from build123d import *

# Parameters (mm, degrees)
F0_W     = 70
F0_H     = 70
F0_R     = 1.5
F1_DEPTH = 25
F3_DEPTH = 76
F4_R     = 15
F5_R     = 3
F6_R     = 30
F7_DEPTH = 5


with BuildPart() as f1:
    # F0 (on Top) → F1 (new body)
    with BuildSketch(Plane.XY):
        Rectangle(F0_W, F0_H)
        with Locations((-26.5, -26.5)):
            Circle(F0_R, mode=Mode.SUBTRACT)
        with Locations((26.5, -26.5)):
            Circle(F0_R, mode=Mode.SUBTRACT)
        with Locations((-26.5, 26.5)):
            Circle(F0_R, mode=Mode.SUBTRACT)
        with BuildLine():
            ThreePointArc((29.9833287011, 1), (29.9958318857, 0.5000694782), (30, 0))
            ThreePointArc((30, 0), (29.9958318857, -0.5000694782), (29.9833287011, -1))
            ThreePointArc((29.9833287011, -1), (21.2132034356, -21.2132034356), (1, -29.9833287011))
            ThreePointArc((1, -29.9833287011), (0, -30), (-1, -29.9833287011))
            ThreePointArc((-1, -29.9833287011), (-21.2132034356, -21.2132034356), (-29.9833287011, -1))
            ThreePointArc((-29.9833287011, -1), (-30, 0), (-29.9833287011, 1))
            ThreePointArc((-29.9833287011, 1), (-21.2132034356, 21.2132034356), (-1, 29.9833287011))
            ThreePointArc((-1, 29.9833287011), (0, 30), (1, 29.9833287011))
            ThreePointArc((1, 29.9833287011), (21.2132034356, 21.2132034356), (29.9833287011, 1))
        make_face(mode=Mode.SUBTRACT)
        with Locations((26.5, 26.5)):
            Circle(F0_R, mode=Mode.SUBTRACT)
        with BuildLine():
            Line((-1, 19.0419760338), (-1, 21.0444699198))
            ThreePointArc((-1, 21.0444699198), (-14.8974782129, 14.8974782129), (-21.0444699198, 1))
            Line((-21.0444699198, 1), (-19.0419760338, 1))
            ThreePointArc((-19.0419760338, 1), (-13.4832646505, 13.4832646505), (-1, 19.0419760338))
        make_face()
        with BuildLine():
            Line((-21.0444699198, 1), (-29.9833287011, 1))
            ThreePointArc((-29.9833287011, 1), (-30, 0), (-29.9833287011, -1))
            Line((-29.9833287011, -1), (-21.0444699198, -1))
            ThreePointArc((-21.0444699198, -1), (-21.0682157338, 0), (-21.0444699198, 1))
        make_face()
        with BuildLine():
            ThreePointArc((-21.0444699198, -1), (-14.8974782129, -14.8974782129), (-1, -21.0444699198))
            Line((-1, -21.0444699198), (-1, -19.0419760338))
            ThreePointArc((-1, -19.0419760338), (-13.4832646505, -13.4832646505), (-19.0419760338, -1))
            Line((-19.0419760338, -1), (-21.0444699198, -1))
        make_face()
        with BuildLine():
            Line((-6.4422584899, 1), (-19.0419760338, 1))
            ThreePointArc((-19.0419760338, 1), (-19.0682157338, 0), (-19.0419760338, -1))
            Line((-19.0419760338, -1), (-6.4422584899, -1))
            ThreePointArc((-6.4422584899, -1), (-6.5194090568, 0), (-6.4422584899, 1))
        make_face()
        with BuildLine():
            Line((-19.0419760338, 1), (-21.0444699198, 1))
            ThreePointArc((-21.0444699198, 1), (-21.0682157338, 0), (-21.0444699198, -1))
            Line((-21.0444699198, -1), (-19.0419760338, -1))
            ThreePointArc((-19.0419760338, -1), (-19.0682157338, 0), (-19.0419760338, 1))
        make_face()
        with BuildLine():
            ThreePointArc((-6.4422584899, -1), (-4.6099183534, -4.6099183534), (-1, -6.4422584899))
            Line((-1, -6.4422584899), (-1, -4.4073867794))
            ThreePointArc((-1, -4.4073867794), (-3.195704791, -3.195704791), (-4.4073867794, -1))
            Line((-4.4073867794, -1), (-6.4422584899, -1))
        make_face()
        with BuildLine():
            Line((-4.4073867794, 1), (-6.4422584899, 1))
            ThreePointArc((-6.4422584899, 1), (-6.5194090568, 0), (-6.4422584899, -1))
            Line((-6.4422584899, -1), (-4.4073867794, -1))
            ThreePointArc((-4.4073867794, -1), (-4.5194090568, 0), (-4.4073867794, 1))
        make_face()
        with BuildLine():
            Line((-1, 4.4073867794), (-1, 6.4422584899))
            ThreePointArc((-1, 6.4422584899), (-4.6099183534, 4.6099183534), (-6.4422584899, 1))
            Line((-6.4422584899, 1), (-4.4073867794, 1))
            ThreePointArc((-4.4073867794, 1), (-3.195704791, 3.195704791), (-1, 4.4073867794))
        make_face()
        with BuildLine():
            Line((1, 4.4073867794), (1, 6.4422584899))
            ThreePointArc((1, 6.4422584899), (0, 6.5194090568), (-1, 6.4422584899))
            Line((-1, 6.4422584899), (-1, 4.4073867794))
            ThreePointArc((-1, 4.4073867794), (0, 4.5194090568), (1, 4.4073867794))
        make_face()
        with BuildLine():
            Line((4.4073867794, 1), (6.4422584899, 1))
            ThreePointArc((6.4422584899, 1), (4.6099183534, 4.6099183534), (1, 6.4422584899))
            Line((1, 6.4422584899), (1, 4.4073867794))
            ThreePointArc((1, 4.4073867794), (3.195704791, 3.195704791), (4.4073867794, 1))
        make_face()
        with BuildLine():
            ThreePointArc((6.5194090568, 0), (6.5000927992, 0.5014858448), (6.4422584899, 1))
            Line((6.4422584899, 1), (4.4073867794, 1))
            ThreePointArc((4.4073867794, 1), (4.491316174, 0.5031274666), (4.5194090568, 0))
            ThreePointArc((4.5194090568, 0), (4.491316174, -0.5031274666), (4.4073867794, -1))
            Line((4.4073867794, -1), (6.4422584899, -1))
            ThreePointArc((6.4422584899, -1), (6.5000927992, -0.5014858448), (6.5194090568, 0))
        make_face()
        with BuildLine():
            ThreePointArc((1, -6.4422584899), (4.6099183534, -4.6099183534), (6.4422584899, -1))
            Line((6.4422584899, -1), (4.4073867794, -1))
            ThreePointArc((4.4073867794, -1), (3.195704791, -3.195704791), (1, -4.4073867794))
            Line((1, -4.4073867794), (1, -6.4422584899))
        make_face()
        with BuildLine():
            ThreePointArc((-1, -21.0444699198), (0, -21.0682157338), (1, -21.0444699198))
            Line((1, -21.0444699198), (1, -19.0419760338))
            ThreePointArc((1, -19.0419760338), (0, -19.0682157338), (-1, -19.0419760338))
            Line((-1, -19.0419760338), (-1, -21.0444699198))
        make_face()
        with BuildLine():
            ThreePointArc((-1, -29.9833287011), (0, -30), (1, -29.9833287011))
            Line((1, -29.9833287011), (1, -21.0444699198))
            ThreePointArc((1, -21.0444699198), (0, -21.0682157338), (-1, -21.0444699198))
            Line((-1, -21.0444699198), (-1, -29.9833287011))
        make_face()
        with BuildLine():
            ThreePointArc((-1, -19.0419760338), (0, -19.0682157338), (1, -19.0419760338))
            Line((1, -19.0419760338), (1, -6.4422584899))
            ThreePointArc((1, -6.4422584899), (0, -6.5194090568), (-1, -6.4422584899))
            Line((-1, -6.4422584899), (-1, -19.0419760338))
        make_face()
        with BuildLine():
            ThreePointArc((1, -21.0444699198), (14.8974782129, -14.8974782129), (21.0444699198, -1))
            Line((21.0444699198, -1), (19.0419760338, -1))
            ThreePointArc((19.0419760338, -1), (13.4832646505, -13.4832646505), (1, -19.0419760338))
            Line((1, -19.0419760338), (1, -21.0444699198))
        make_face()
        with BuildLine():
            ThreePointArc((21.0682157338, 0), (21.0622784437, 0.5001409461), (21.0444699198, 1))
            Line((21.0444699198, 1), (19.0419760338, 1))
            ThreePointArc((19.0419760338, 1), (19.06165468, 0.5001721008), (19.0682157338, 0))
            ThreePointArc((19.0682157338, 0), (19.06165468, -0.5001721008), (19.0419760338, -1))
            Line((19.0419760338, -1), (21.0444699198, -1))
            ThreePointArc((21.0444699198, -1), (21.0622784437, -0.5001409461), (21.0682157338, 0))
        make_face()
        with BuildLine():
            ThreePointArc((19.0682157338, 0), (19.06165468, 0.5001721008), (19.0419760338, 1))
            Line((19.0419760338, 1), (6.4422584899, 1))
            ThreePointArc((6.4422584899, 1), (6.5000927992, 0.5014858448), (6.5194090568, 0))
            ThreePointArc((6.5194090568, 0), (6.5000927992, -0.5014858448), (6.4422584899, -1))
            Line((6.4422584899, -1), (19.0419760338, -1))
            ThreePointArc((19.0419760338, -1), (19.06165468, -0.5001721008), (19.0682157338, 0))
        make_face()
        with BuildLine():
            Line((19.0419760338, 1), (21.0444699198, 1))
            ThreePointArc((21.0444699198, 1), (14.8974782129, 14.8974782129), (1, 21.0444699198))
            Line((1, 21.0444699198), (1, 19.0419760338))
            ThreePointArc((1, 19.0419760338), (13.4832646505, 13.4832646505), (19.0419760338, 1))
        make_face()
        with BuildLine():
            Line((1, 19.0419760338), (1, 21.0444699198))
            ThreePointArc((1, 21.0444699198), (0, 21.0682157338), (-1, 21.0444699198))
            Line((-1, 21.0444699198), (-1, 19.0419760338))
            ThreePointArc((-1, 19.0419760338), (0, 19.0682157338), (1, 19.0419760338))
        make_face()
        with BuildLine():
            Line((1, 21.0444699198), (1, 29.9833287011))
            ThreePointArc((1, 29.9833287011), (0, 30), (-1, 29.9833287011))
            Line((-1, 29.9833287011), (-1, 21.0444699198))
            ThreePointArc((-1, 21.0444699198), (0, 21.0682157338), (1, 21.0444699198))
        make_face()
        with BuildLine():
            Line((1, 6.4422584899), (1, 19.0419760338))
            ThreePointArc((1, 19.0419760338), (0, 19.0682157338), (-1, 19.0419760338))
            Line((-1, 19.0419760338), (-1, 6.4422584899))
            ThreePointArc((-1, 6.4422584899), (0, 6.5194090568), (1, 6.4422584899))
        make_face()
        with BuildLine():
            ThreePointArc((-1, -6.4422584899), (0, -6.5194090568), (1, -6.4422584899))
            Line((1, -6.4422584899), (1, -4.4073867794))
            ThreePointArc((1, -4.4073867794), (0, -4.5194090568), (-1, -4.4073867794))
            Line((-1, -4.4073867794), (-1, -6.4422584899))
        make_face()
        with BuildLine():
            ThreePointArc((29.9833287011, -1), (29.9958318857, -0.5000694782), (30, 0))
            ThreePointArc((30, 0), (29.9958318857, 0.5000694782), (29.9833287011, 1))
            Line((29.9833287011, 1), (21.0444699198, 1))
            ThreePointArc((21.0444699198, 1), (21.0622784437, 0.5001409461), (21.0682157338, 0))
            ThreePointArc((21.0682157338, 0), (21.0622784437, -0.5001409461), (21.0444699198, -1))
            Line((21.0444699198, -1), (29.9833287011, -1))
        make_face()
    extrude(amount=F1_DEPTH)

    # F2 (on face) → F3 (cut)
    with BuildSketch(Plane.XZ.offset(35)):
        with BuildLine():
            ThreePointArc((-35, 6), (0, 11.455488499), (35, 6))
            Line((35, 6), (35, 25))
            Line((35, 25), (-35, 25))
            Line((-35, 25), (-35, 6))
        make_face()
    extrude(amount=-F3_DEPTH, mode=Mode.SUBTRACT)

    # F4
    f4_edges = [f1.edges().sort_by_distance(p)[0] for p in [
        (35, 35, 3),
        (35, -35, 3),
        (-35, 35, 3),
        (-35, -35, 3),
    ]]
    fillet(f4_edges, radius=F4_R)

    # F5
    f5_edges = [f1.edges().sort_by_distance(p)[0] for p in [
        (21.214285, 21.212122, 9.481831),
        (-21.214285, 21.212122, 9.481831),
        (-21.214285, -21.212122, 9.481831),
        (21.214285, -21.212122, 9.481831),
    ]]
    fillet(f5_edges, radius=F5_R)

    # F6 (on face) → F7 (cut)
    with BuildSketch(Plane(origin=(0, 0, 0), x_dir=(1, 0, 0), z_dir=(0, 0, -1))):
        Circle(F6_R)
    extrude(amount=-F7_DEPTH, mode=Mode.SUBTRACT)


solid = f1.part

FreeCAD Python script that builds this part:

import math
import FreeCAD as App
import Part
import Sketcher
from FreeCAD import Vector


def edges_at(feature, points):
    """Names of the edges that pass closest to the given points."""
    edges = feature.Shape.Edges
    near = lambda p: min(range(len(edges)), key=lambda i: edges[i].distToShape(Part.Vertex(*p))[0])
    return sorted({f"Edge{near(p) + 1}" for p in points})

doc = App.newDocument("Part")
body = doc.addObject("PartDesign::Body", "Body")

# Sketch on XY plane
sketch1 = doc.addObject("Sketcher::SketchObject", "Sketch")
body.addObject(sketch1)
sketch1.AttachmentSupport = (doc.XY_Plane, [""])
sketch1.MapMode = "FlatFace"
sketch1.addGeometry([
    Part.LineSegment(Vector(-35, 35, 0), Vector(-35, -35, 0)),  # 0
    Part.LineSegment(Vector(-35, -35, 0), Vector(35, -35, 0)),  # 1
    Part.LineSegment(Vector(35, -35, 0), Vector(35, 35, 0)),  # 2
    Part.LineSegment(Vector(35, 35, 0), Vector(-35, 35, 0)),  # 3
    Part.Circle(Vector(-26.5, -26.5, 0), Vector(0, 0, 1), 1.5),  # 4
    Part.ArcOfCircle(Part.Circle(Vector(0, 0, 0), Vector(0, 0, 1), 30), math.radians(-178), math.radians(-92)),  # 5
    Part.LineSegment(Vector(-30, -1, 0), Vector(-21, -1, 0)),  # 6
    Part.ArcOfCircle(Part.Circle(Vector(0, 0, 0), Vector(0, 0, 1), 21.1), math.radians(-177), math.radians(-93)),  # 7
    Part.LineSegment(Vector(-1, -21, 0), Vector(-1, -30, 0)),  # 8
    Part.ArcOfCircle(Part.Circle(Vector(0, 0, 0), Vector(0, 0, 1), 6.5), math.radians(-171), math.radians(-99)),  # 9
    Part.LineSegment(Vector(-1, -6.4, 0), Vector(-1, -19, 0)),  # 10
    Part.ArcOfCircle(Part.Circle(Vector(0, 0, 0), Vector(0, 0, 1), 19.1), math.radians(-177), math.radians(-93)),  # 11
    Part.LineSegment(Vector(-19, -1, 0), Vector(-6.4, -1, 0)),  # 12
    Part.ArcOfCircle(Part.Circle(Vector(0, 0, 0), Vector(0, 0, 1), 4.5), math.radians(-77), math.radians(-13)),  # 13
    Part.ArcOfCircle(Part.Circle(Vector(0, 0, 0), Vector(0, 0, 1), 4.5), math.radians(-103), math.radians(-77)),  # 14
    Part.ArcOfCircle(Part.Circle(Vector(0, 0, 0), Vector(0, 0, 1), 4.5), math.radians(-167), math.radians(-103)),  # 15
    Part.ArcOfCircle(Part.Circle(Vector(0, 0, 0), Vector(0, 0, 1), 4.5), math.radians(167), math.radians(193)),  # 16
    Part.ArcOfCircle(Part.Circle(Vector(0, 0, 0), Vector(0, 0, 1), 4.5), math.radians(103), math.radians(167)),  # 17
    Part.ArcOfCircle(Part.Circle(Vector(0, 0, 0), Vector(0, 0, 1), 4.5), math.radians(77), math.radians(103)),  # 18
    Part.ArcOfCircle(Part.Circle(Vector(0, 0, 0), Vector(0, 0, 1), 4.5), math.radians(13), math.radians(77)),  # 19
    Part.ArcOfCircle(Part.Circle(Vector(0, 0, 0), Vector(0, 0, 1), 4.5), math.radians(0), math.radians(12.78)),  # 20
    Part.ArcOfCircle(Part.Circle(Vector(0, 0, 0), Vector(0, 0, 1), 4.5), math.radians(-12.78), math.radians(0)),  # 21
    Part.Circle(Vector(26.5, -26.5, 0), Vector(0, 0, 1), 1.5),  # 22
    Part.LineSegment(Vector(1, -19, 0), Vector(1, -6.4, 0)),  # 23
    Part.ArcOfCircle(Part.Circle(Vector(0, 0, 0), Vector(0, 0, 1), 6.5), math.radians(-81), math.radians(-9)),  # 24
    Part.LineSegment(Vector(6.4, -1, 0), Vector(19, -1, 0)),  # 25
    Part.ArcOfCircle(Part.Circle(Vector(0, 0, 0), Vector(0, 0, 1), 19.1), math.radians(-87), math.radians(-3)),  # 26
    Part.ArcOfCircle(Part.Circle(Vector(0, 0, 0), Vector(0, 0, 1), 19.1), math.radians(93), math.radians(177)),  # 27
    Part.LineSegment(Vector(-1, 19, 0), Vector(-1, 6.4, 0)),  # 28
    Part.ArcOfCircle(Part.Circle(Vector(0, 0, 0), Vector(0, 0, 1), 6.5), math.radians(99), math.radians(171)),  # 29
    Part.LineSegment(Vector(-6.4, 1, 0), Vector(-19, 1, 0)),  # 30
    Part.ArcOfCircle(Part.Circle(Vector(0, 0, 0), Vector(0, 0, 1), 21.1), math.radians(93), math.radians(177)),  # 31
    Part.LineSegment(Vector(-21, 1, 0), Vector(-30, 1, 0)),  # 32
    Part.ArcOfCircle(Part.Circle(Vector(0, 0, 0), Vector(0, 0, 1), 30), math.radians(92), math.radians(178)),  # 33
    Part.LineSegment(Vector(-1, 30, 0), Vector(-1, 21, 0)),  # 34
    Part.Circle(Vector(-26.5, 26.5, 0), Vector(0, 0, 1), 1.5),  # 35
    Part.ArcOfCircle(Part.Circle(Vector(0, 0, 0), Vector(0, 0, 1), 19.1), math.radians(3), math.radians(87)),  # 36
    Part.LineSegment(Vector(19, 1, 0), Vector(6.4, 1, 0)),  # 37
    Part.ArcOfCircle(Part.Circle(Vector(0, 0, 0), Vector(0, 0, 1), 6.5), math.radians(9), math.radians(81)),  # 38
    Part.LineSegment(Vector(1, 6.4, 0), Vector(1, 19, 0)),  # 39
    Part.ArcOfCircle(Part.Circle(Vector(0, 0, 0), Vector(0, 0, 1), 21.1), math.radians(3), math.radians(87)),  # 40
    Part.LineSegment(Vector(1, 21, 0), Vector(1, 30, 0)),  # 41
    Part.ArcOfCircle(Part.Circle(Vector(0, 0, 0), Vector(0, 0, 1), 30), math.radians(2), math.radians(88)),  # 42
    Part.LineSegment(Vector(30, 1, 0), Vector(21, 1, 0)),  # 43
    Part.ArcOfCircle(Part.Circle(Vector(0, 0, 0), Vector(0, 0, 1), 30), math.radians(-88), math.radians(-2)),  # 44
    Part.LineSegment(Vector(1, -30, 0), Vector(1, -21, 0)),  # 45
    Part.ArcOfCircle(Part.Circle(Vector(0, 0, 0), Vector(0, 0, 1), 21.1), math.radians(-87), math.radians(-3)),  # 46
    Part.LineSegment(Vector(21, -1, 0), Vector(30, -1, 0)),  # 47
    Part.Circle(Vector(26.5, 26.5, 0), Vector(0, 0, 1), 1.5),  # 48
], False)
sketch1.addConstraint([
    Sketcher.Constraint("Coincident", 0, 2, 1, 1),
    Sketcher.Constraint("Coincident", 1, 2, 2, 1),
    Sketcher.Constraint("Coincident", 2, 2, 3, 1),
    Sketcher.Constraint("Coincident", 3, 2, 0, 1),
    Sketcher.Constraint("Coincident", 5, 1, 6, 1),
    Sketcher.Constraint("Coincident", 6, 2, 7, 1),
    Sketcher.Constraint("Coincident", 7, 2, 8, 1),
    Sketcher.Constraint("Coincident", 8, 2, 5, 2),
    Sketcher.Constraint("Coincident", 9, 2, 10, 1),
    Sketcher.Constraint("Coincident", 10, 2, 11, 2),
    Sketcher.Constraint("Coincident", 11, 1, 12, 1),
    Sketcher.Constraint("Coincident", 12, 2, 9, 1),
    Sketcher.Constraint("Tangent", 13, 1, 14, 2),
    Sketcher.Constraint("Tangent", 14, 1, 15, 2),
    Sketcher.Constraint("Tangent", 15, 1, 16, 2),
    Sketcher.Constraint("Tangent", 16, 1, 17, 2),
    Sketcher.Constraint("Tangent", 17, 1, 18, 2),
    Sketcher.Constraint("Tangent", 18, 1, 19, 2),
    Sketcher.Constraint("Tangent", 19, 1, 20, 2),
    Sketcher.Constraint("Tangent", 20, 1, 21, 2),
    Sketcher.Constraint("Tangent", 21, 1, 13, 2),
    Sketcher.Constraint("Coincident", 23, 2, 24, 1),
    Sketcher.Constraint("Coincident", 24, 2, 25, 1),
    Sketcher.Constraint("Coincident", 25, 2, 26, 2),
    Sketcher.Constraint("Coincident", 26, 1, 23, 1),
    Sketcher.Constraint("Coincident", 27, 1, 28, 1),
    Sketcher.Constraint("Coincident", 28, 2, 29, 1),
    Sketcher.Constraint("Coincident", 29, 2, 30, 1),
    Sketcher.Constraint("Coincident", 30, 2, 27, 2),
    Sketcher.Constraint("Coincident", 31, 2, 32, 1),
    Sketcher.Constraint("Coincident", 32, 2, 33, 2),
    Sketcher.Constraint("Coincident", 33, 1, 34, 1),
    Sketcher.Constraint("Coincident", 34, 2, 31, 1),
    Sketcher.Constraint("Coincident", 36, 1, 37, 1),
    Sketcher.Constraint("Coincident", 37, 2, 38, 1),
    Sketcher.Constraint("Coincident", 38, 2, 39, 1),
    Sketcher.Constraint("Coincident", 39, 2, 36, 2),
    Sketcher.Constraint("Coincident", 40, 2, 41, 1),
    Sketcher.Constraint("Coincident", 41, 2, 42, 2),
    Sketcher.Constraint("Coincident", 42, 1, 43, 1),
    Sketcher.Constraint("Coincident", 43, 2, 40, 1),
    Sketcher.Constraint("Coincident", 44, 1, 45, 1),
    Sketcher.Constraint("Coincident", 45, 2, 46, 1),
    Sketcher.Constraint("Coincident", 46, 2, 47, 1),
    Sketcher.Constraint("Coincident", 47, 2, 44, 2),
    Sketcher.Constraint("Vertical", 0),
    Sketcher.Constraint("Horizontal", 1),
    Sketcher.Constraint("Vertical", 2),
    Sketcher.Constraint("Horizontal", 3),
    Sketcher.Constraint("Horizontal", 6),
    Sketcher.Constraint("Vertical", 8),
    Sketcher.Constraint("Vertical", 10),
    Sketcher.Constraint("Horizontal", 12),
    Sketcher.Constraint("Vertical", 23),
    Sketcher.Constraint("Horizontal", 25),
    Sketcher.Constraint("Vertical", 28),
    Sketcher.Constraint("Horizontal", 30),
    Sketcher.Constraint("Horizontal", 32),
    Sketcher.Constraint("Vertical", 34),
    Sketcher.Constraint("Horizontal", 37),
    Sketcher.Constraint("Vertical", 39),
    Sketcher.Constraint("Vertical", 41),
    Sketcher.Constraint("Horizontal", 43),
    Sketcher.Constraint("Vertical", 45),
    Sketcher.Constraint("Horizontal", 47),
    Sketcher.Constraint("Coincident", 5, 3, -1, 1),
    Sketcher.Constraint("Coincident", 7, 3, -1, 1),
    Sketcher.Constraint("Coincident", 9, 3, -1, 1),
    Sketcher.Constraint("Coincident", 11, 3, -1, 1),
    Sketcher.Constraint("Coincident", 13, 3, -1, 1),
    Sketcher.Constraint("Coincident", 15, 3, -1, 1),
    Sketcher.Constraint("Coincident", 17, 3, -1, 1),
    Sketcher.Constraint("Coincident", 19, 3, -1, 1),
    Sketcher.Constraint("Coincident", 24, 3, -1, 1),
    Sketcher.Constraint("Coincident", 26, 3, -1, 1),
    Sketcher.Constraint("Coincident", 27, 3, -1, 1),
    Sketcher.Constraint("Coincident", 29, 3, -1, 1),
    Sketcher.Constraint("Coincident", 31, 3, -1, 1),
    Sketcher.Constraint("Coincident", 33, 3, -1, 1),
    Sketcher.Constraint("Coincident", 36, 3, -1, 1),
    Sketcher.Constraint("Coincident", 38, 3, -1, 1),
    Sketcher.Constraint("Coincident", 40, 3, -1, 1),
    Sketcher.Constraint("Coincident", 42, 3, -1, 1),
    Sketcher.Constraint("Coincident", 44, 3, -1, 1),
    Sketcher.Constraint("Coincident", 46, 3, -1, 1),
    Sketcher.Constraint("Equal", 4, 22),
    Sketcher.Constraint("Equal", 9, 24),
    Sketcher.Constraint("Equal", 11, 26),
    Sketcher.Constraint("Equal", 26, 27),
    Sketcher.Constraint("Equal", 24, 29),
    Sketcher.Constraint("Equal", 7, 31),
    Sketcher.Constraint("Equal", 5, 33),
    Sketcher.Constraint("Equal", 22, 35),
    Sketcher.Constraint("Equal", 27, 36),
    Sketcher.Constraint("Equal", 29, 38),
    Sketcher.Constraint("Equal", 31, 40),
    Sketcher.Constraint("Equal", 33, 42),
    Sketcher.Constraint("Equal", 42, 44),
    Sketcher.Constraint("Equal", 40, 46),
    Sketcher.Constraint("Equal", 35, 48),
    Sketcher.Constraint("Symmetric", 22, 3, 35, 3, -1, 1),
    Sketcher.Constraint("Symmetric", 4, 3, 48, 3, -1, 1),
    Sketcher.Constraint("Symmetric", 0, 2, 2, 2, -1, 1),
    Sketcher.Constraint("Symmetric", 4, 3, 22, 3, -2),
    Sketcher.Constraint("PointOnObject", 20, 1, -1),
    Sketcher.Constraint("Horizontal", 6, 2, 11, 1),
    Sketcher.Constraint("Horizontal", 13, 1, 14, 1),
    Sketcher.Constraint("Horizontal", 12, 2, 15, 1),
    Sketcher.Constraint("Horizontal", 17, 1, 18, 1),
    Sketcher.Constraint("Horizontal", 16, 1, 19, 1),
    Sketcher.Constraint("Horizontal", 15, 1, 21, 1),
    Sketcher.Constraint("Horizontal", 9, 2, 23, 2),
    Sketcher.Constraint("Horizontal", 21, 1, 24, 2),
    Sketcher.Constraint("Horizontal", 19, 1, 29, 2),
    Sketcher.Constraint("Horizontal", 30, 2, 31, 2),
    Sketcher.Constraint("Horizontal", 32, 2, 36, 1),
    Sketcher.Constraint("Horizontal", 28, 2, 38, 2),
    Sketcher.Constraint("Horizontal", 34, 2, 40, 2),
    Sketcher.Constraint("Horizontal", 37, 2, 42, 1),
    Sketcher.Constraint("Horizontal", 8, 2, 44, 1),
    Sketcher.Constraint("Horizontal", 25, 2, 46, 2),
    Sketcher.Constraint("Vertical", 8, 2, 9, 2),
    Sketcher.Constraint("Vertical", 10, 2, 14, 1),
    Sketcher.Constraint("Vertical", 15, 1, 16, 1),
    Sketcher.Constraint("Vertical", 14, 1, 17, 1),
    Sketcher.Constraint("Vertical", 17, 1, 27, 1),
    Sketcher.Constraint("Vertical", 28, 2, 33, 1),
    Sketcher.Constraint("Equal", 3, 0),
    Sketcher.Constraint("Equal", 47, 8),
    Sketcher.Constraint("Diameter", 4, 3.0),
    Sketcher.Constraint("Radius", 5, 30.0),
    Sketcher.Constraint("DistanceX", 1, 1, 1, 2, 70.0),
    Sketcher.Constraint("DistanceY", 5, 1, -1, 1, 1.0),
    Sketcher.Constraint("DistanceX", 4, 3, -1, 1, 26.5),
    Sketcher.Constraint("DistanceY", 4, 3, -1, 1, 26.5),
    Sketcher.Constraint("Radius", 9, 6.519409),
    Sketcher.Constraint("Radius", 13, 4.519409),
    Sketcher.Constraint("Radius", 7, 21.068216),
    Sketcher.Constraint("Radius", 11, 19.068216),
])
pad1 = doc.addObject("PartDesign::Pad", "Pad")
body.addObject(pad1)
pad1.Profile = sketch1
pad1.Length = 25

# Sketch on XZ plane
sketch2 = doc.addObject("Sketcher::SketchObject", "Sketch001")
body.addObject(sketch2)
sketch2.AttachmentSupport = (doc.XZ_Plane, [""])
sketch2.MapMode = "FlatFace"
sketch2.AttachmentOffset = App.Placement(Vector(0, 0, 35), App.Rotation())
sketch2.addGeometry([
    Part.ArcOfCircle(Part.Circle(Vector(0, -104, 0), Vector(0, 0, 1), 115), math.radians(72), math.radians(108)),
    Part.LineSegment(Vector(35, 6, 0), Vector(35, 25, 0)),
    Part.LineSegment(Vector(35, 25, 0), Vector(-35, 25, 0)),
    Part.LineSegment(Vector(-35, 25, 0), Vector(-35, 6, 0)),
], False)
sketch2.addConstraint([
    Sketcher.Constraint("Coincident", 0, 1, 1, 1),
    Sketcher.Constraint("Coincident", 1, 2, 2, 1),
    Sketcher.Constraint("Coincident", 2, 2, 3, 1),
    Sketcher.Constraint("Coincident", 3, 2, 0, 2),
    Sketcher.Constraint("Vertical", 1),
    Sketcher.Constraint("Horizontal", 2),
    Sketcher.Constraint("Vertical", 3),
    Sketcher.Constraint("Symmetric", 0, 1, 3, 2, -2),
    Sketcher.Constraint("Radius", 0, 115.0),
    Sketcher.Constraint("DistanceX", 2, 2, 2, 1, 70.0),
    Sketcher.Constraint("DistanceY", 1, 1, 1, 2, 19.0),
    Sketcher.Constraint("DistanceY", -1, 1, 0, 1, 6.0),
])
pocket1 = doc.addObject("PartDesign::Pocket", "Pocket")
body.addObject(pocket1)
pocket1.Profile = sketch2
pocket1.Length = 76
doc.recompute()

fillet = doc.addObject("PartDesign::Fillet", "Fillet")
body.addObject(fillet)
fillet.Base = (pocket1, edges_at(pocket1, [
    (35, 35, 3),
    (35, -35, 3),
    (-35, 35, 3),
    (-35, -35, 3),
]))
fillet.Radius = 15
doc.recompute()

fillet2 = doc.addObject("PartDesign::Fillet", "Fillet001")
body.addObject(fillet2)
fillet2.Base = (fillet, edges_at(fillet, [
    (21.214, 21.212, 9.482),
    (-21.214, 21.212, 9.482),
    (-21.214, -21.212, 9.482),
    (21.214, -21.212, 9.482),
]))
fillet2.Radius = 3

# Sketch on XY plane
sketch3 = doc.addObject("Sketcher::SketchObject", "Sketch002")
body.addObject(sketch3)
sketch3.AttachmentSupport = (doc.XY_Plane, [""])
sketch3.MapMode = "FlatFace"
sketch3.addGeometry(Part.Circle(Vector(0, 0, 0), Vector(0, 0, 1), 30), False)
sketch3.addConstraint([
    Sketcher.Constraint("Coincident", 0, 3, -1, 1),
    Sketcher.Constraint("Diameter", 0, 60.0),
])
pocket2 = doc.addObject("PartDesign::Pocket", "Pocket001")
body.addObject(pocket2)
pocket2.Profile = sketch3
pocket2.Length = 5
pocket2.Reversed = True

doc.recompute()
